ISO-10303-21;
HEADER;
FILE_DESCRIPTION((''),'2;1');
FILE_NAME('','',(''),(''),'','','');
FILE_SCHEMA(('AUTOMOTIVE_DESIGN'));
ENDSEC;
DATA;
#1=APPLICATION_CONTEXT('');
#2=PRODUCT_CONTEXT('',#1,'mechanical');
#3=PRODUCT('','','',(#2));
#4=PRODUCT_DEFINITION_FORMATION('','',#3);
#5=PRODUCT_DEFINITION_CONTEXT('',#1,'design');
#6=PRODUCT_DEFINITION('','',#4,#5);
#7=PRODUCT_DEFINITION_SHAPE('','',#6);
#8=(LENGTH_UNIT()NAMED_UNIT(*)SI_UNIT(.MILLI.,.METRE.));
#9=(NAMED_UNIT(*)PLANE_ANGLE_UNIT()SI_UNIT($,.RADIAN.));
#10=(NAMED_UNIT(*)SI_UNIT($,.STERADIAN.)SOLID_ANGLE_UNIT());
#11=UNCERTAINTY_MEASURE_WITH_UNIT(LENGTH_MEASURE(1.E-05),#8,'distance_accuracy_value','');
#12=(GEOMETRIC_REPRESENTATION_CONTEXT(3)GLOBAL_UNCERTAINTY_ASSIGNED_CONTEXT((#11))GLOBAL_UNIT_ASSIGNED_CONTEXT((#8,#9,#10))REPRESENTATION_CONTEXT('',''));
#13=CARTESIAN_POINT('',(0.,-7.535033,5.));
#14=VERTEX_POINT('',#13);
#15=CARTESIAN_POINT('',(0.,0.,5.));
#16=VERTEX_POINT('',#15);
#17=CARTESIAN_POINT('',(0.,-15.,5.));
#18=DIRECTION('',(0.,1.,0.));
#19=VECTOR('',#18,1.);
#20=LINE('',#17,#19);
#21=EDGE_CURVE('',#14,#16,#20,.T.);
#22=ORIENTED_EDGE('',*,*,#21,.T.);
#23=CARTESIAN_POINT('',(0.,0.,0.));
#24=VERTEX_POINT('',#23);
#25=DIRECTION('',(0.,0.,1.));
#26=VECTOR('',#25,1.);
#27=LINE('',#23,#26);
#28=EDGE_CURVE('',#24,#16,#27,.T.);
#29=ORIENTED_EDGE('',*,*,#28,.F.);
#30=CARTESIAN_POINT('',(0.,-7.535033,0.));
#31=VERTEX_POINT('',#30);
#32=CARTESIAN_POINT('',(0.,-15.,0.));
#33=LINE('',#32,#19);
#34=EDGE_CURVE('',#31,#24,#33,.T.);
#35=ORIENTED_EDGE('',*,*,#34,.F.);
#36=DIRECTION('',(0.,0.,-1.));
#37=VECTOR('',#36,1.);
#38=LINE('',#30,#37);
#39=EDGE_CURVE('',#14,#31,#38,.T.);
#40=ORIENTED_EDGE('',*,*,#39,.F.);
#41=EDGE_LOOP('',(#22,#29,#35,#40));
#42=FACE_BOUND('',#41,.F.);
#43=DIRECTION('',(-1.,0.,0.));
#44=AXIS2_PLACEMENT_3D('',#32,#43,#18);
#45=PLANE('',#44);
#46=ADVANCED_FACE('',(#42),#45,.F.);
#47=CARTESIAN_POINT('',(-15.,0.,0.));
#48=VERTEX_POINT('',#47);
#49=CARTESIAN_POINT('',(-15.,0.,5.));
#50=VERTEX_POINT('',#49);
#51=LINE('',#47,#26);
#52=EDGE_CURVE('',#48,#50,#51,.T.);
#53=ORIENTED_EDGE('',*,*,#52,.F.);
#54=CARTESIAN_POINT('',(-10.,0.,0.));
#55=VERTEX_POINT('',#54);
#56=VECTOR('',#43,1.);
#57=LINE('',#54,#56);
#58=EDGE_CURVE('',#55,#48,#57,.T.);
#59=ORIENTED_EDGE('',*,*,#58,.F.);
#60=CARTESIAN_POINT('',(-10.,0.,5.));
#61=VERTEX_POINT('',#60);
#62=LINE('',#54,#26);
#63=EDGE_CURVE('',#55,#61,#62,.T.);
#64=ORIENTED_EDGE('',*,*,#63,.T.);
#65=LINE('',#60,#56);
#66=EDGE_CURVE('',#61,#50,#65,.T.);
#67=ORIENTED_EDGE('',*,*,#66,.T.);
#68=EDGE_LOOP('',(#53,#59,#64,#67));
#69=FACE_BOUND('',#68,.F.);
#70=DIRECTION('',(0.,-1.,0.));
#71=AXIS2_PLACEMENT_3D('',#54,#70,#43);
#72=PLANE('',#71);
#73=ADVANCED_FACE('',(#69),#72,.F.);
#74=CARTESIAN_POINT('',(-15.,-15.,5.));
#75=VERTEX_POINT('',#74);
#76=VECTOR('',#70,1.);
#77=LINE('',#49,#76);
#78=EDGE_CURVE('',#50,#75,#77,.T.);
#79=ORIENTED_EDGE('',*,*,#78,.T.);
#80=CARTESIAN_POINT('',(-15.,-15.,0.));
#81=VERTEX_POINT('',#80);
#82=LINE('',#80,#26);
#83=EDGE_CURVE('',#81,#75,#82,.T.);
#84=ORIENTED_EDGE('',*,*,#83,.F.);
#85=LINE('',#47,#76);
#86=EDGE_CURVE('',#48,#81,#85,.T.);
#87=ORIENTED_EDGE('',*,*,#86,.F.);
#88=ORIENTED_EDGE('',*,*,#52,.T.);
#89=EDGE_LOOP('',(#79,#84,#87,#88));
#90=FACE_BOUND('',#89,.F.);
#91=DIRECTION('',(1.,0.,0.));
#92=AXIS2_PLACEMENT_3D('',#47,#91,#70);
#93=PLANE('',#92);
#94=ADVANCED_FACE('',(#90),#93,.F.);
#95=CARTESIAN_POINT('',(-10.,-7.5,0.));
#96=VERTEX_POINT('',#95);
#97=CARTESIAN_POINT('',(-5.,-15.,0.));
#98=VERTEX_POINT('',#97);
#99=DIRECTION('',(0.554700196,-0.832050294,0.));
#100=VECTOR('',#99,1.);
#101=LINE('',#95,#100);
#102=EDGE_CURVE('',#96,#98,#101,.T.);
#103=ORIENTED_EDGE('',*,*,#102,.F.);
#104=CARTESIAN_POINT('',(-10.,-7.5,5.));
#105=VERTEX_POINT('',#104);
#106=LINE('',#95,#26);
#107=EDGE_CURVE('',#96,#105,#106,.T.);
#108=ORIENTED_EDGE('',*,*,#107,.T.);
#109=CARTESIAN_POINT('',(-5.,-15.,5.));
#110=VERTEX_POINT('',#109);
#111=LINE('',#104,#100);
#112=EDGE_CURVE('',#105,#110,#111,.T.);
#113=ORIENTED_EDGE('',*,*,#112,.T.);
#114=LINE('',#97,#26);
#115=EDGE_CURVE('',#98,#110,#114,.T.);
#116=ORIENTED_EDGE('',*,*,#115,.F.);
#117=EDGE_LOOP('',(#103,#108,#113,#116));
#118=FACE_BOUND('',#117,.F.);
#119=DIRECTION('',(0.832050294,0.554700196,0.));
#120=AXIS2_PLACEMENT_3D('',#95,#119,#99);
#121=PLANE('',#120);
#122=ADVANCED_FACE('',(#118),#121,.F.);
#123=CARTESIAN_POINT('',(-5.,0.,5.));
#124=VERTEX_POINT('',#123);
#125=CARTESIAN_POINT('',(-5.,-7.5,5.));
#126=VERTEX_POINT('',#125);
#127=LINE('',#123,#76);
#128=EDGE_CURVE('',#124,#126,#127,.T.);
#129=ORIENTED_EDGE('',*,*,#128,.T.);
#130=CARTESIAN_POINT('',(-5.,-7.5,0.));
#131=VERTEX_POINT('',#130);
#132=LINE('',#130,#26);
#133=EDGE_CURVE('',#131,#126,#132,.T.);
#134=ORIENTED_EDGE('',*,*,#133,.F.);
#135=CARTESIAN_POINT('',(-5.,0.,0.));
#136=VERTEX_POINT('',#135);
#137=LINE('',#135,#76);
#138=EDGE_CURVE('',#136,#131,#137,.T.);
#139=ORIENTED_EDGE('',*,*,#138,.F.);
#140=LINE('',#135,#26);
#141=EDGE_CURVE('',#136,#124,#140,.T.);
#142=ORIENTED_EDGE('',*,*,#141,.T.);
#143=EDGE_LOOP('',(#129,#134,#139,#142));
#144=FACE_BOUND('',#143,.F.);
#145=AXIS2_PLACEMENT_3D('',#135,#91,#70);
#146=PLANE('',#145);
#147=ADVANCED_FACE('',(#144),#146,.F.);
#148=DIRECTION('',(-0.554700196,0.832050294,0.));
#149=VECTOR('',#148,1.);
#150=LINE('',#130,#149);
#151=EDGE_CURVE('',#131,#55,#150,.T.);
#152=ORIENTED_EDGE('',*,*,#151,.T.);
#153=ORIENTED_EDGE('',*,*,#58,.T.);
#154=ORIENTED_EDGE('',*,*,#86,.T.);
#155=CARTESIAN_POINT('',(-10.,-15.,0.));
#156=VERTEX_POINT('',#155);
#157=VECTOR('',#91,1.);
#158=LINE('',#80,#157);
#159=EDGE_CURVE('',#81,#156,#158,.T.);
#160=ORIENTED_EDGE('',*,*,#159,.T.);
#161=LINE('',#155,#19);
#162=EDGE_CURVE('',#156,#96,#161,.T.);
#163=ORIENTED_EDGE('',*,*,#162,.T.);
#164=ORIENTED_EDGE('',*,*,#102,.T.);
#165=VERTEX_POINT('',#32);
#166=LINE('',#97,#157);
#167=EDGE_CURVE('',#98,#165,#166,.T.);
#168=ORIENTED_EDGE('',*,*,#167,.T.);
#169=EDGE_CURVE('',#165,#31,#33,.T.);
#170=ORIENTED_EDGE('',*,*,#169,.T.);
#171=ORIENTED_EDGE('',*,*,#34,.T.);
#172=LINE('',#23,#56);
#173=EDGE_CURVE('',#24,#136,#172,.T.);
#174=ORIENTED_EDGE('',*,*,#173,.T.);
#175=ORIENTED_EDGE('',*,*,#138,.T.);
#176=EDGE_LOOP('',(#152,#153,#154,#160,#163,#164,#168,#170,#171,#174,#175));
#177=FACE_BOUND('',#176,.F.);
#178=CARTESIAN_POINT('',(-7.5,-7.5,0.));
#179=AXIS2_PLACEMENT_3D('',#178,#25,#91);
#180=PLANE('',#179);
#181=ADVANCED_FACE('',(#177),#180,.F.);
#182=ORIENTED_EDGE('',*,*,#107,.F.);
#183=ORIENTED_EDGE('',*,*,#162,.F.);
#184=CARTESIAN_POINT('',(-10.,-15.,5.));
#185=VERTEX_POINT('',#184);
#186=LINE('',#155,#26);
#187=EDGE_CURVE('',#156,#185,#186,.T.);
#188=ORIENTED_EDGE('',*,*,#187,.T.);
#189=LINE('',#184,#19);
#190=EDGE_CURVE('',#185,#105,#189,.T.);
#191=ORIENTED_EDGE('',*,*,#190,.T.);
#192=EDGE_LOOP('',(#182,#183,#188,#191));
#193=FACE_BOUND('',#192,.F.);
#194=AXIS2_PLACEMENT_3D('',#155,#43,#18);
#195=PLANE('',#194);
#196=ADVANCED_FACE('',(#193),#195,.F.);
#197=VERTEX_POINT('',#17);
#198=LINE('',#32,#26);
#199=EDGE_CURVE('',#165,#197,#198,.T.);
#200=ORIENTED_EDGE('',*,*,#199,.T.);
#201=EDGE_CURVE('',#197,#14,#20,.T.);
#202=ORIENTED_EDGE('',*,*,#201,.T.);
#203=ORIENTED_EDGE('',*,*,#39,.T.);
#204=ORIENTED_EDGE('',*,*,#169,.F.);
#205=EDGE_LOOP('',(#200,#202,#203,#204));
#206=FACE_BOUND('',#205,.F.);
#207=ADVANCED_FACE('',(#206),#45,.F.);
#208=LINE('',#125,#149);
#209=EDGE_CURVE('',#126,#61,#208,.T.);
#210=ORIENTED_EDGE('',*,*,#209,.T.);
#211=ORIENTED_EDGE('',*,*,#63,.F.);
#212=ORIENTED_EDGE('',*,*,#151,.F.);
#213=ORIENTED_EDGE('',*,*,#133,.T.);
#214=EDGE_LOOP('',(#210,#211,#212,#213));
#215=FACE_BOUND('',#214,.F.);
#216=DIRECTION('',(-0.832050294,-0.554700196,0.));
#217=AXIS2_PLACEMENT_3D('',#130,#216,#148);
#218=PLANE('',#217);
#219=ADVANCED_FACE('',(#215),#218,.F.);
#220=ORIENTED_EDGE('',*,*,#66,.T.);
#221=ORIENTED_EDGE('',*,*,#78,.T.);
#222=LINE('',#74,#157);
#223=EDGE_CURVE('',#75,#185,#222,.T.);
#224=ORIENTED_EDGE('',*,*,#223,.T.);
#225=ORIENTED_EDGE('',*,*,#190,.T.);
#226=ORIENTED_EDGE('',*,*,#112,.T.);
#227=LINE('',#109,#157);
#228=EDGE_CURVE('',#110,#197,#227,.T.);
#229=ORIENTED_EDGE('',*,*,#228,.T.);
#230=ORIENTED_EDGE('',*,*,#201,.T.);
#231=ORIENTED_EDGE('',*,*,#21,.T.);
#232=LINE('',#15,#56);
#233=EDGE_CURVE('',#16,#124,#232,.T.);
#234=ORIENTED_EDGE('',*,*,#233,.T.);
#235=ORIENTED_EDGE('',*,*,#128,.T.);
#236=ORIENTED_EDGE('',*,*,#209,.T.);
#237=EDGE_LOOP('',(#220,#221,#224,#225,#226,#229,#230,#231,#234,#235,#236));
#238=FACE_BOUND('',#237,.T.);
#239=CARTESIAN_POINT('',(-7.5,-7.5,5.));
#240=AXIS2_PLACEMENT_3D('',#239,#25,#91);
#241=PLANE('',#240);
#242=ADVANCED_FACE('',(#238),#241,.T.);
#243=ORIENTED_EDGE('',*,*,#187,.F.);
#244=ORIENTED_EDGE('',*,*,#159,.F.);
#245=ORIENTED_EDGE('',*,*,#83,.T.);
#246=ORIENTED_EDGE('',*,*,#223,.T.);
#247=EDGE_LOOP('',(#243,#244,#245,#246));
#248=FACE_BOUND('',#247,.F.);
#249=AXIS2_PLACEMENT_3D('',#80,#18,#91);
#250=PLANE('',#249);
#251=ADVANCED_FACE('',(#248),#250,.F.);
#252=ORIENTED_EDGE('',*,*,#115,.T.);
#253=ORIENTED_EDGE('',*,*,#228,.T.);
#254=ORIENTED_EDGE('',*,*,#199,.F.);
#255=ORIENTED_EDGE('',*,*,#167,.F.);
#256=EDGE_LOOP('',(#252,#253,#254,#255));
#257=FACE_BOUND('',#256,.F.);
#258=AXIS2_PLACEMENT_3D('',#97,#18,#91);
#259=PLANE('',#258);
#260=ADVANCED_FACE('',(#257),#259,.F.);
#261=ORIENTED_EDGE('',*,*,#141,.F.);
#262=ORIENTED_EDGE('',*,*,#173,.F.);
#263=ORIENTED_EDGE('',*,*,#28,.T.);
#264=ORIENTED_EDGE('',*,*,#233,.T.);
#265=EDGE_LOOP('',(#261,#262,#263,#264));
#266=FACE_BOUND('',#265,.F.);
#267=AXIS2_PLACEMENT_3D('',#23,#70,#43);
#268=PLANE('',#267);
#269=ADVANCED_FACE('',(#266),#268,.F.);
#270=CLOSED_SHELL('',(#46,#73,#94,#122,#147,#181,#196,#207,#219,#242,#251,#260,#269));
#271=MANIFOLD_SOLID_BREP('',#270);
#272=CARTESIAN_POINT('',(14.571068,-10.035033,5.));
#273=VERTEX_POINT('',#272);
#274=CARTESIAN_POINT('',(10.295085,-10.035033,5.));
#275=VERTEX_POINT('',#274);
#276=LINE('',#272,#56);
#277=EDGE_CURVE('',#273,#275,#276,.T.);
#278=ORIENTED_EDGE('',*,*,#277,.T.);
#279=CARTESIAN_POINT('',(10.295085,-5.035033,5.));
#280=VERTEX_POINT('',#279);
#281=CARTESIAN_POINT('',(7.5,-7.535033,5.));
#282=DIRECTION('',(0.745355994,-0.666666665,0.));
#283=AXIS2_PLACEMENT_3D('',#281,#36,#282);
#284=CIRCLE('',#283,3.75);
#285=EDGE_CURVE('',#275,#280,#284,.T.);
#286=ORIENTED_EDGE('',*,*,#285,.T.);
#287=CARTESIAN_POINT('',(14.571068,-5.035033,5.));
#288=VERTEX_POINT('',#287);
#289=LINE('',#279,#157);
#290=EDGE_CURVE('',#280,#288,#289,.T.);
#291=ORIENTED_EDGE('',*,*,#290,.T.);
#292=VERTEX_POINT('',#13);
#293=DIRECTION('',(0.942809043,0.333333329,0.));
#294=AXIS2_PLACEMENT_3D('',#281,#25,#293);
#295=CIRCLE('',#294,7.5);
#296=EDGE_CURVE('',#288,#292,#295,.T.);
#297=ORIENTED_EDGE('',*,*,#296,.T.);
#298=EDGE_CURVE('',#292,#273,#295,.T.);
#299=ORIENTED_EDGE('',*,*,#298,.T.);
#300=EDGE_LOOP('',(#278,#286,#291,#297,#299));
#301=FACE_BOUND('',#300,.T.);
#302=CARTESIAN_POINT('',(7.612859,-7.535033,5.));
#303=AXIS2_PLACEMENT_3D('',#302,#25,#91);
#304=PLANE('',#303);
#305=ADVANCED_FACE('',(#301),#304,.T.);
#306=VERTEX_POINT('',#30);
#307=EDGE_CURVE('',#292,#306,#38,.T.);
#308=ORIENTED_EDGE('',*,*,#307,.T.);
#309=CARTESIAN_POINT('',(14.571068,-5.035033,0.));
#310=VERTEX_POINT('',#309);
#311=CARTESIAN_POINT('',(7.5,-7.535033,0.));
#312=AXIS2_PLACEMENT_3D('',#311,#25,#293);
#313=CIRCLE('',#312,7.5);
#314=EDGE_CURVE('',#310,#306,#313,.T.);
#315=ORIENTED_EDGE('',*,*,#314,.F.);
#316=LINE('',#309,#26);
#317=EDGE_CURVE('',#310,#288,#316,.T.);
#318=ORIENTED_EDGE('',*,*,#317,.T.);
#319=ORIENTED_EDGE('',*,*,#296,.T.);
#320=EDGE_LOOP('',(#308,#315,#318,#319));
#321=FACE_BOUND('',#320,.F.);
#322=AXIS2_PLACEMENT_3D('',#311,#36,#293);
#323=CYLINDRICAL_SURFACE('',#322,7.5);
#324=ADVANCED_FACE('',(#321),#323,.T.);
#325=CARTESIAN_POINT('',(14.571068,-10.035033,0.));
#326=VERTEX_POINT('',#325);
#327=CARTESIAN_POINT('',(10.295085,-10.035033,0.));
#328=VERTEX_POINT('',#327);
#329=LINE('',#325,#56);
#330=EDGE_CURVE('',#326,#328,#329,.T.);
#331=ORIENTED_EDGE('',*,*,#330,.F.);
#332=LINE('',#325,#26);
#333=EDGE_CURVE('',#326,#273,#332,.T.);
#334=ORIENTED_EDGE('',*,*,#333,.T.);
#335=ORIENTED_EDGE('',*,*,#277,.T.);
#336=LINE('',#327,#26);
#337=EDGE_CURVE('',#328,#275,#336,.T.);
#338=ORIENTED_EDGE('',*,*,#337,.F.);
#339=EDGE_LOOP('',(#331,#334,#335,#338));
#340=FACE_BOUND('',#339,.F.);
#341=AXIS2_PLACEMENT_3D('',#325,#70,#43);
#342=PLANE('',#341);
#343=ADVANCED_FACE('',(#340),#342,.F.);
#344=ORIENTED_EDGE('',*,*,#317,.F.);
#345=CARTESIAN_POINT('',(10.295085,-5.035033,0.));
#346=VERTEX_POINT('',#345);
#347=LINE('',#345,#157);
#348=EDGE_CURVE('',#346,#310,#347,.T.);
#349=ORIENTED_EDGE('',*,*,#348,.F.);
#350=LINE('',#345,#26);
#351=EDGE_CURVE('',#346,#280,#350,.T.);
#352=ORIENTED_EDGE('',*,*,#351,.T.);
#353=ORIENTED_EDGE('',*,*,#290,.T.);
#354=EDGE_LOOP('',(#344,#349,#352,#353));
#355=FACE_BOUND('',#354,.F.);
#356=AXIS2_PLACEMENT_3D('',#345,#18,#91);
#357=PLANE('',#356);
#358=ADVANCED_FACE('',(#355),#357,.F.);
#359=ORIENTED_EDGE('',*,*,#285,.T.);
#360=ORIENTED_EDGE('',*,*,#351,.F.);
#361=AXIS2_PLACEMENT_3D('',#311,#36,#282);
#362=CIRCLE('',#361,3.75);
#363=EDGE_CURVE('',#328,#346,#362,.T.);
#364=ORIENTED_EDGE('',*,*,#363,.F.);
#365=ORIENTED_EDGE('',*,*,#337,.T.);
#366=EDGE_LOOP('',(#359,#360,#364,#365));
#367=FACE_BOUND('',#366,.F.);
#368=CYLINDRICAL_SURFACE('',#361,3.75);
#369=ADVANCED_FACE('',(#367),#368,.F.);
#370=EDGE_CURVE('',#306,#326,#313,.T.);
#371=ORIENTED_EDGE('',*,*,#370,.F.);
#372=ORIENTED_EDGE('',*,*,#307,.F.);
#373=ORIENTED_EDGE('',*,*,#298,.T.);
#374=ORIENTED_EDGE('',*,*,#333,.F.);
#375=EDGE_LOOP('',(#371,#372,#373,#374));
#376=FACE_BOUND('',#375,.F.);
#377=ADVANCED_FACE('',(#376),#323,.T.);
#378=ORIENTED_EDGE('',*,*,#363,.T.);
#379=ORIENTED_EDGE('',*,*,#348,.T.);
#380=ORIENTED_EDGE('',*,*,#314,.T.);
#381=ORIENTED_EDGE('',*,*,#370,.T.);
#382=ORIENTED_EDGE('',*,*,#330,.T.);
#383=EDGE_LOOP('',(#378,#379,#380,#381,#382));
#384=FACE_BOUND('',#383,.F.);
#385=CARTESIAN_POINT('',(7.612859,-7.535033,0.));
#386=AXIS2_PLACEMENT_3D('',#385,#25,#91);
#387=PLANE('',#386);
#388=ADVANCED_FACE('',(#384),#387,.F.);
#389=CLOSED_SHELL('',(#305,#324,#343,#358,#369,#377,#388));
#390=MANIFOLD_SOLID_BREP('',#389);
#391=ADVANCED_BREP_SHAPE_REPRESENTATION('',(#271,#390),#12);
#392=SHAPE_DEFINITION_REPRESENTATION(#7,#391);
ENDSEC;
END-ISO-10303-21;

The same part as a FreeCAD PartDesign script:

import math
import FreeCAD as App
import Part
import Sketcher
from FreeCAD import Vector
Q = App.Units.Quantity

doc = App.newDocument("Part")
body = doc.addObject("PartDesign::Body", "Body")
body.AllowCompound = True

# Sketch on XY plane
sketch1 = body.newObject("Sketcher::SketchObject", "Sketch")
sketch1.AttachmentSupport = (doc.getObject("XY_Plane"), [""])
sketch1.MapMode = "FlatFace"
sketch1.addGeometry(Part.LineSegment(Vector(-15, 0, 0), Vector(-15, -15, 0)), False)
sketch1.addGeometry(Part.LineSegment(Vector(-15, -15, 0), Vector(-10, -15, 0)), False)
sketch1.addGeometry(Part.LineSegment(Vector(-10, -15, 0), Vector(-10, -7.5, 0)), False)
sketch1.addGeometry(Part.LineSegment(Vector(-10, -7.5, 0), Vector(-5, -15, 0)), False)
sketch1.addGeometry(Part.LineSegment(Vector(-5, -15, 0), Vector(0, -15, 0)), False)
sketch1.addGeometry(Part.LineSegment(Vector(0, -15, 0), Vector(0, 0, 0)), False)
sketch1.addGeometry(Part.LineSegment(Vector(0, 0, 0), Vector(-5, 0, 0)), False)
sketch1.addGeometry(Part.LineSegment(Vector(-5, 0, 0), Vector(-5, -7.5, 0)), False)
sketch1.addGeometry(Part.LineSegment(Vector(-5, -7.5, 0), Vector(-10, 0, 0)), False)
sketch1.addGeometry(Part.LineSegment(Vector(-10, 0, 0), Vector(-15, 0, 0)), False)
sketch1.addConstraint(Sketcher.Constraint("Coincident", 0, 2, 1, 1))
sketch1.addConstraint(Sketcher.Constraint("Coincident", 1, 2, 2, 1))
sketch1.addConstraint(Sketcher.Constraint("Coincident", 2, 2, 3, 1))
sketch1.addConstraint(Sketcher.Constraint("Coincident", 3, 2, 4, 1))
sketch1.addConstraint(Sketcher.Constraint("Coincident", 4, 2, 5, 1))
sketch1.addConstraint(Sketcher.Constraint("Coincident", 5, 2, 6, 1))
sketch1.addConstraint(Sketcher.Constraint("Coincident", 6, 2, 7, 1))
sketch1.addConstraint(Sketcher.Constraint("Coincident", 7, 2, 8, 1))
sketch1.addConstraint(Sketcher.Constraint("Coincident", 8, 2, 9, 1))
sketch1.addConstraint(Sketcher.Constraint("Coincident", 9, 2, 0, 1))
sketch1.addConstraint(Sketcher.Constraint("Vertical", 0))
sketch1.addConstraint(Sketcher.Constraint("Horizontal", 1))
sketch1.addConstraint(Sketcher.Constraint("Vertical", 2))
sketch1.addConstraint(Sketcher.Constraint("Horizontal", 4))
sketch1.addConstraint(Sketcher.Constraint("Vertical", 5))
sketch1.addConstraint(Sketcher.Constraint("Horizontal", 6))
sketch1.addConstraint(Sketcher.Constraint("Vertical", 7))
sketch1.addConstraint(Sketcher.Constraint("Horizontal", 9))
sketch1.addConstraint(Sketcher.Constraint("Coincident", 5, 2, -1, 1))
sketch1.addConstraint(Sketcher.Constraint("PointOnObject", 8, 2, -1))
sketch1.addConstraint(Sketcher.Constraint("Parallel", 3, 8))
sketch1.addConstraint(Sketcher.Constraint("Horizontal", 1, 2, 3, 2))
sketch1.addConstraint(Sketcher.Constraint("Horizontal", 2, 2, 7, 2))
sketch1.addConstraint(Sketcher.Constraint("Vertical", 3, 2, 6, 2))
sketch1.addConstraint(Sketcher.Constraint("Vertical", 2, 2, 8, 2))
sketch1.addConstraint(Sketcher.Constraint("Equal", 1, 4))
sketch1.addConstraint(Sketcher.Constraint("DistanceX", 1, 1, 1, 2, Q("5 mm")))
sketch1.addConstraint(Sketcher.Constraint("DistanceY", 0, 2, 0, 1, Q("15 mm")))
sketch1.addConstraint(Sketcher.Constraint("DistanceX", 0, 2, -1, 1, Q("15 mm")))
pad1 = body.newObject("PartDesign::Pad", "Pad")
pad1.Profile = sketch1
pad1.Length = 5

# Sketch on XY plane
sketch2 = body.newObject("Sketcher::SketchObject", "Sketch001")
sketch2.AttachmentSupport = (doc.getObject("XY_Plane"), [""])
sketch2.MapMode = "FlatFace"
sketch2.addGeometry(Part.LineSegment(Vector(10.295085, -5.035033, 0), Vector(14.571068, -5.035033, 0)), False)
sketch2.addGeometry(Part.ArcOfCircle(Part.Circle(Vector(7.5, -7.535033, 0), Vector(0, 0, 1), 7.5), math.radians(19.47122), math.radians(340.52878)), False)
sketch2.addGeometry(Part.LineSegment(Vector(14.571068, -10.035033, 0), Vector(10.295085, -10.035033, 0)), False)
sketch2.addGeometry(Part.ArcOfCircle(Part.Circle(Vector(7.5, -7.535033, 0), Vector(0, 0, 1), 3.75), math.radians(41.810315), math.radians(318.189685)), False)
sketch2.addConstraint(Sketcher.Constraint("Coincident", 0, 2, 1, 1))
sketch2.addConstraint(Sketcher.Constraint("Coincident", 1, 2, 2, 1))
sketch2.addConstraint(Sketcher.Constraint("Coincident", 2, 2, 3, 2))
sketch2.addConstraint(Sketcher.Constraint("Coincident", 3, 1, 0, 1))
sketch2.addConstraint(Sketcher.Constraint("Horizontal", 0))
sketch2.addConstraint(Sketcher.Constraint("Horizontal", 2))
sketch2.addConstraint(Sketcher.Constraint("Coincident", 3, 3, 1, 3))
sketch2.addConstraint(Sketcher.Constraint("Vertical", 0, 2, 1, 2))
sketch2.addConstraint(Sketcher.Constraint("Radius", 1, Q("7.5 mm")))
sketch2.addConstraint(Sketcher.Constraint("Radius", 3, Q("3.75 mm")))
sketch2.addConstraint(Sketcher.Constraint("DistanceY", 1, 2, 0, 2, Q("5 mm")))
sketch2.addConstraint(Sketcher.Constraint("DistanceX", -1, 1, 1, 3, Q("7.5 mm")))
sketch2.addConstraint(Sketcher.Constraint("DistanceY", 1, 3, -1, 1, Q("7.535033 mm")))
pad2 = body.newObject("PartDesign::Pad", "Pad001")
pad2.Profile = sketch2
pad2.Length = 5

doc.recompute()
